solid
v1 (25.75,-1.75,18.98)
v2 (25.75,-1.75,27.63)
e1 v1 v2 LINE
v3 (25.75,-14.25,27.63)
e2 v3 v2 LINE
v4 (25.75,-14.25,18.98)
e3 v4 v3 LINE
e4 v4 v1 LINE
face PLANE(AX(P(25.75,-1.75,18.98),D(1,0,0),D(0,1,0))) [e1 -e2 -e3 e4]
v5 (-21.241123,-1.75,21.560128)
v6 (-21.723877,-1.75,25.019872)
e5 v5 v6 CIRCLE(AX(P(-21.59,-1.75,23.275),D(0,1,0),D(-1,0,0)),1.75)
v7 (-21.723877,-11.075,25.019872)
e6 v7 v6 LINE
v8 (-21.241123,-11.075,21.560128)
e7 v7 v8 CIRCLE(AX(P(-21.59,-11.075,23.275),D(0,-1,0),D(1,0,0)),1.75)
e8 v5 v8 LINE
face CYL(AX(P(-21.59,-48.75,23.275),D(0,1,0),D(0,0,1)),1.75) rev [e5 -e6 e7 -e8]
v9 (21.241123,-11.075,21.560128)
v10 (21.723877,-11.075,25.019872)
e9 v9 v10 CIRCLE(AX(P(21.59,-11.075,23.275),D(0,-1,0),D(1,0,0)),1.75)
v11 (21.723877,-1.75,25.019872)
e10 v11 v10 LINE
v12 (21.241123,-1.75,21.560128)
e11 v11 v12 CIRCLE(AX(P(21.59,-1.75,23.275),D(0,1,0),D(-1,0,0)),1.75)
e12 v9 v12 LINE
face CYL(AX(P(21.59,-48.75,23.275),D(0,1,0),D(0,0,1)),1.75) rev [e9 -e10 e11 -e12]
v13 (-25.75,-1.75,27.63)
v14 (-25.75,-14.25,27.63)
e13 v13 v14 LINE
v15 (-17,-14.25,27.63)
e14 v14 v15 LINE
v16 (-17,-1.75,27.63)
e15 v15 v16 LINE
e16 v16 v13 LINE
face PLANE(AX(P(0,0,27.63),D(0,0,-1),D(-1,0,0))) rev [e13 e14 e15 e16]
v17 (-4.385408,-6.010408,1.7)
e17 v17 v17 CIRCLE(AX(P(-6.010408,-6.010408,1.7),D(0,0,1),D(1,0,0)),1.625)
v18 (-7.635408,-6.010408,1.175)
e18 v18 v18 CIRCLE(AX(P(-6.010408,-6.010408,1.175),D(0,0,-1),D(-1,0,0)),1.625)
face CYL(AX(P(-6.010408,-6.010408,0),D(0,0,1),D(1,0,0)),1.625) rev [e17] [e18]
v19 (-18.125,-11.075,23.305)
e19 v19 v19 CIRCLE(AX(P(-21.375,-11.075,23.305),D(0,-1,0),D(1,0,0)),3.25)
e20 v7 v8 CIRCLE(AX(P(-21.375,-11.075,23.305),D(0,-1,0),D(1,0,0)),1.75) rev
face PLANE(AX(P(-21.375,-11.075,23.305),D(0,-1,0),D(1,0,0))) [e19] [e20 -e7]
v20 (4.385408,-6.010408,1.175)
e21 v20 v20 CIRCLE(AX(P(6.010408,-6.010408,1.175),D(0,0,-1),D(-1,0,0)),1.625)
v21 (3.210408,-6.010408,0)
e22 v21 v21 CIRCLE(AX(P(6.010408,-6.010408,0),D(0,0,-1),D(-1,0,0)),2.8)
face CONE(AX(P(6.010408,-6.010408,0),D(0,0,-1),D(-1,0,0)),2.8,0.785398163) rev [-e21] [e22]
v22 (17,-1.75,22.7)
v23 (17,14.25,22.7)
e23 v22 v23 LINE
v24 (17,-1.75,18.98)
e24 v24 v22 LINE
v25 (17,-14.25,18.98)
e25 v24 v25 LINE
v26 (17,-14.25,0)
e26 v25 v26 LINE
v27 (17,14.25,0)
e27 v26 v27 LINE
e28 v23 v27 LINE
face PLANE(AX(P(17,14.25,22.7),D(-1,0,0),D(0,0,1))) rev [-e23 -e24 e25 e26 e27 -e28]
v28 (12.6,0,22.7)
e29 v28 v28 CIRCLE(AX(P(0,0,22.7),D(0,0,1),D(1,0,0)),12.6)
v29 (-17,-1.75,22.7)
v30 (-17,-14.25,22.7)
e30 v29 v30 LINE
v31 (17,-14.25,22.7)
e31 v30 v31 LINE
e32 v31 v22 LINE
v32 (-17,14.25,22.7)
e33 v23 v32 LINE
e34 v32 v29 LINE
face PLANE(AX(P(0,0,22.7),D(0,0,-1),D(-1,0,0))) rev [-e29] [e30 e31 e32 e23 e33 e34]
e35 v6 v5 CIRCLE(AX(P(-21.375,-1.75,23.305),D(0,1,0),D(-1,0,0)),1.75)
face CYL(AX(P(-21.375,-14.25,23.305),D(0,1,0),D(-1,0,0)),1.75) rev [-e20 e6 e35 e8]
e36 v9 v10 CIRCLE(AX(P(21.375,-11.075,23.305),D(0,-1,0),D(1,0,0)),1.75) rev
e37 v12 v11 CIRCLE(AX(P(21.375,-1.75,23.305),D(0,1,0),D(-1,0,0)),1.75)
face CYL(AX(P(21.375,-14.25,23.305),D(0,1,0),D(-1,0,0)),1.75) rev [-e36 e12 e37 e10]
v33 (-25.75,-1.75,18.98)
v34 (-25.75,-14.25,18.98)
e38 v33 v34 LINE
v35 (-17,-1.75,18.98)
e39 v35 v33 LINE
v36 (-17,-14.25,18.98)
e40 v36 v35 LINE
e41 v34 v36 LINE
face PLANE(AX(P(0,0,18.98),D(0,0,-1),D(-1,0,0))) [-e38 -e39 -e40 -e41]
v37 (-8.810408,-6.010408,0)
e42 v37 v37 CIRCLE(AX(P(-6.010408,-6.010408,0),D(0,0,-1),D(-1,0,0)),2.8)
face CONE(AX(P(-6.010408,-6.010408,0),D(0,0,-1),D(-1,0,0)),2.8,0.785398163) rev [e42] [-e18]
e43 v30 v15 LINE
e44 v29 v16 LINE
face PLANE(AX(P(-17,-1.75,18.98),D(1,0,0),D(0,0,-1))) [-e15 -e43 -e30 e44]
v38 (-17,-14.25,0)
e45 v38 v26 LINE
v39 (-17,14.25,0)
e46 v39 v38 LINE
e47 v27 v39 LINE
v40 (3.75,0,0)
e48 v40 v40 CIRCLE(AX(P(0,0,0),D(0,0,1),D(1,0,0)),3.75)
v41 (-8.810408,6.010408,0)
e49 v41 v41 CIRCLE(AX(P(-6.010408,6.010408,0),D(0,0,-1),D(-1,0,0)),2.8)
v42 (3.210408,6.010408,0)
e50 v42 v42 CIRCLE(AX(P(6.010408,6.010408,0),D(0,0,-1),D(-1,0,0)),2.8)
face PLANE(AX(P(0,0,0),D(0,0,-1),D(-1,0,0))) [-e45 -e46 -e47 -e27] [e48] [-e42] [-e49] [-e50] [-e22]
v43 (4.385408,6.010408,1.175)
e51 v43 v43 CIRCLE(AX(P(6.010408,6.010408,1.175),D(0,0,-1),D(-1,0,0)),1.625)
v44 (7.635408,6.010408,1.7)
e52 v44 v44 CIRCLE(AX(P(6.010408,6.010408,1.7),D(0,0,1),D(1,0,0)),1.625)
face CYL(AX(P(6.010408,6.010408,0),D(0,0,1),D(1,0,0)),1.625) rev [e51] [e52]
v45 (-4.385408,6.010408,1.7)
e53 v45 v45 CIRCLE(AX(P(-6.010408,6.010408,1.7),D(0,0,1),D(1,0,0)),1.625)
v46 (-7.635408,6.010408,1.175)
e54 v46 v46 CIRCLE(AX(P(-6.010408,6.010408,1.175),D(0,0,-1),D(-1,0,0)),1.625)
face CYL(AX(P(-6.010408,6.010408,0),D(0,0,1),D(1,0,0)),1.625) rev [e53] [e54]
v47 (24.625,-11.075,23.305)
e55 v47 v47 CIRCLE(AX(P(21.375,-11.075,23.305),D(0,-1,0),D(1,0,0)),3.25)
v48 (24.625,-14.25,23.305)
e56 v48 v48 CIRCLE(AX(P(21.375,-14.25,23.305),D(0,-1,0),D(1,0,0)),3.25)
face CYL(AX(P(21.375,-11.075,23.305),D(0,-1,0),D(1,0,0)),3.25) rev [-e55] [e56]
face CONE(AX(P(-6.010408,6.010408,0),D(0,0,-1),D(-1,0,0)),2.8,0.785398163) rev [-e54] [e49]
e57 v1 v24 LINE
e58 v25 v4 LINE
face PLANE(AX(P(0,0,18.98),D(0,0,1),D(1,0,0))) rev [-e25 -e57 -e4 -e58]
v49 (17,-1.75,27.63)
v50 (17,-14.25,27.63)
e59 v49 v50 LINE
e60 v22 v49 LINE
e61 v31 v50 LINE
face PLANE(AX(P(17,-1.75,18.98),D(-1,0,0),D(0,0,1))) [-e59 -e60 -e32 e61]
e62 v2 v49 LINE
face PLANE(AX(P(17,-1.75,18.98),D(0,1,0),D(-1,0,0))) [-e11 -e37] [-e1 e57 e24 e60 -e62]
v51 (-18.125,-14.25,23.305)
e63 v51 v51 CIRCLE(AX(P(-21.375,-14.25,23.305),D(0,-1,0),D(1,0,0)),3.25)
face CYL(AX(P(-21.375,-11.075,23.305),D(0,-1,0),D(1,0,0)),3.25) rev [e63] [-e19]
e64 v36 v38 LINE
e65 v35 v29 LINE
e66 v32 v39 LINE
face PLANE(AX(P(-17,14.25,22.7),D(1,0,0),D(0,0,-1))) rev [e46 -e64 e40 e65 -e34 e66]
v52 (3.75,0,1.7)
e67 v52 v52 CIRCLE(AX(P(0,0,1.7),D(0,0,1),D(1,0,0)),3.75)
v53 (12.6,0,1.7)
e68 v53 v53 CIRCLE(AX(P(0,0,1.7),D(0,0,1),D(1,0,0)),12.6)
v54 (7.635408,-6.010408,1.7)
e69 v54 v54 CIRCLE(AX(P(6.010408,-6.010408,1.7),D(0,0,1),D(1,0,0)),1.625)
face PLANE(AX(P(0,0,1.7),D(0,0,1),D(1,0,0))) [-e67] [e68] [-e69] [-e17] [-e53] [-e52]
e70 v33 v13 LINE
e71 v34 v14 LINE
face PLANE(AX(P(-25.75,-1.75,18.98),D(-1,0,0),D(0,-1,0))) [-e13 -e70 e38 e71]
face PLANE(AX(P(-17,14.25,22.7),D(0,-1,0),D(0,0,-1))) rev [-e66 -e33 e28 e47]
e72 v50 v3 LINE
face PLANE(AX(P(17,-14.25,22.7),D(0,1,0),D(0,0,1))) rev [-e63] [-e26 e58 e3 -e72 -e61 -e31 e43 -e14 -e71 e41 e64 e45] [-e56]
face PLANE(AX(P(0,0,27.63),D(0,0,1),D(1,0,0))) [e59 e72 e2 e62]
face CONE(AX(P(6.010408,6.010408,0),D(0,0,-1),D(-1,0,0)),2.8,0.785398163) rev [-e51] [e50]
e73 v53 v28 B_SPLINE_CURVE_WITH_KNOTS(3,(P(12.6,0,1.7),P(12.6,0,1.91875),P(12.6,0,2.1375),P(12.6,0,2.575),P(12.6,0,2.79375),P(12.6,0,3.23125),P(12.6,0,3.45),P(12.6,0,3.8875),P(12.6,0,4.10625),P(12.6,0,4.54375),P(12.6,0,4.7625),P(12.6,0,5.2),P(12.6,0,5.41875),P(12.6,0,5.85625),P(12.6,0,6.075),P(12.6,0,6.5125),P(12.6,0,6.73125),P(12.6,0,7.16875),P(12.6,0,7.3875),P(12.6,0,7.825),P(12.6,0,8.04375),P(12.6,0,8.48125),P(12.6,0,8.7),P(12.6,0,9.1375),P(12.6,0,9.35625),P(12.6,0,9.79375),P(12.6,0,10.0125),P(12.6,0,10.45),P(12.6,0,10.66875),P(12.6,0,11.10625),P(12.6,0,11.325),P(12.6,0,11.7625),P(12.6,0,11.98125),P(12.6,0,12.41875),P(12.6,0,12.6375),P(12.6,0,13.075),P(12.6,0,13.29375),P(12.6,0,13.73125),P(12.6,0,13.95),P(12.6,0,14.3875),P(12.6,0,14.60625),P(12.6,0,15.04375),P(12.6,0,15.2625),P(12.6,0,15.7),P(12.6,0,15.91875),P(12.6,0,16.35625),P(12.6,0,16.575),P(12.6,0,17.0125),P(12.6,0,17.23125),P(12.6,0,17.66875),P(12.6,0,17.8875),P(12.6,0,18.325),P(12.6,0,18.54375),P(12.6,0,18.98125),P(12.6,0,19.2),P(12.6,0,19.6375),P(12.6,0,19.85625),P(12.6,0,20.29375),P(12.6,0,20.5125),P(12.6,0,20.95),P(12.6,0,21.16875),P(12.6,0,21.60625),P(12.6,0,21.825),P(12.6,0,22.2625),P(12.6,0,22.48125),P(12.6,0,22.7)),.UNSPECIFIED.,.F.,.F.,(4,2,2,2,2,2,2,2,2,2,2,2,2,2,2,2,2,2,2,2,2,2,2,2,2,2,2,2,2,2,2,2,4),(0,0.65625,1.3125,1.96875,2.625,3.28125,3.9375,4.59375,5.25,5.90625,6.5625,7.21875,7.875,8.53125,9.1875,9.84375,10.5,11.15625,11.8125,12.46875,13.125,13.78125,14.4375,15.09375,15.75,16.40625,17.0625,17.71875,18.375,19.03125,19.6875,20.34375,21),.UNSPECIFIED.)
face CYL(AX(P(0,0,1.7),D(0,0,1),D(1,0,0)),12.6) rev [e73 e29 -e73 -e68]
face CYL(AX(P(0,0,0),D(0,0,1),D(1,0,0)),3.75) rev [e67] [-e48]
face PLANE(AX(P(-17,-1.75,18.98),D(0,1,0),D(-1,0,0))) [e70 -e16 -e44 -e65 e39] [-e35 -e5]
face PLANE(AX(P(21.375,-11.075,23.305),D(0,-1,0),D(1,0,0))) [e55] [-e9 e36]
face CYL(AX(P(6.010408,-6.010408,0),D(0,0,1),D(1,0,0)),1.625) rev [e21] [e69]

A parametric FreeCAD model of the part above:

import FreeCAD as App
import Part
import Sketcher


def add_polygon(sketch, points):
    """Adds a closed chain of lines whose ends are joined by coincident constraints."""
    first, n = sketch.GeometryCount, len(points)
    for a, b in zip(points, points[1:] + points[:1]):
        sketch.addGeometry(Part.LineSegment(App.Vector(*a, 0), App.Vector(*b, 0)), False)
    for i in range(n):
        sketch.addConstraint(Sketcher.Constraint("Coincident", first + i, 2, first + (i + 1) % n, 1))

doc = App.newDocument("Part")
body = doc.addObject("PartDesign::Body", "Body")

sketch1 = body.newObject("Sketcher::SketchObject", "Sketch")
sketch1.AttachmentSupport = (doc.getObject("XY_Plane"), [""])
sketch1.MapMode = "FlatFace"
add_polygon(sketch1, [(-17, 14.25), (-17, -14.25), (17, -14.25), (17, 14.25)])
sketch1.addConstraint([
    Sketcher.Constraint("Vertical", 0),
    Sketcher.Constraint("Horizontal", 1),
    Sketcher.Constraint("Vertical", 2),
    Sketcher.Constraint("Horizontal", 3),
    Sketcher.Constraint("Symmetric", 0, 2, 2, 2, -1, 1),
    Sketcher.Constraint("DistanceX", 1, 1, 1, 2, 34.0),
    Sketcher.Constraint("DistanceY", 0, 2, 0, 1, 28.5),
])
pad1 = body.newObject("PartDesign::Pad", "Pad")
pad1.Profile = sketch1
pad1.Length = 22.7

sketch2 = body.newObject("Sketcher::SketchObject", "Sketch001")
sketch2.AttachmentSupport = (doc.getObject("XY_Plane"), [""])
sketch2.MapMode = "FlatFace"
sketch2.AttachmentOffset = App.Placement(App.Vector(0, 0, 22.7), App.Rotation())
sketch2.addGeometry(Part.Circle(App.Vector(0, 0, 0), App.Vector(0, 0, 1), 12.6), False)
sketch2.addConstraint([
    Sketcher.Constraint("Coincident", 0, 3, -1, 1),
    Sketcher.Constraint("Diameter", 0, 25.2),
])
pocket1 = body.newObject("PartDesign::Pocket", "Pocket")
pocket1.Profile = sketch2
pocket1.Length = 21

sketch3 = body.newObject("Sketcher::SketchObject", "Sketch002")
sketch3.AttachmentSupport = (doc.getObject("XY_Plane"), [""])
sketch3.MapMode = "FlatFace"
sketch3.AttachmentOffset = App.Placement(App.Vector(0, 0, 1.7), App.Rotation())
sketch3.addGeometry([
    Part.Circle(App.Vector(6.010408, 6.010408, 0), App.Vector(0, 0, 1), 1.625),
    Part.Circle(App.Vector(-6.010408, 6.010408, 0), App.Vector(0, 0, 1), 1.625),
    Part.Circle(App.Vector(6.010408, -6.010408, 0), App.Vector(0, 0, 1), 1.625),
    Part.Circle(App.Vector(-6.010408, -6.010408, 0), App.Vector(0, 0, 1), 1.625),
    Part.Circle(App.Vector(0, 0, 0), App.Vector(0, 0, 1), 3.75),
], False)
sketch3.addConstraint([
    Sketcher.Constraint("Coincident", 4, 3, -1, 1),
    Sketcher.Constraint("Equal", 0, 1),
    Sketcher.Constraint("Equal", 1, 2),
    Sketcher.Constraint("Equal", 2, 3),
    Sketcher.Constraint("Symmetric", 1, 3, 2, 3, -1, 1),
    Sketcher.Constraint("Symmetric", 0, 3, 3, 3, -1, 1),
    Sketcher.Constraint("Symmetric", 0, 3, 1, 3, -2),
    Sketcher.Constraint("Diameter", 4, 7.5),
    Sketcher.Constraint("Diameter", 0, 3.25),
    Sketcher.Constraint("DistanceX", -1, 1, 0, 3, 6.010408),
    Sketcher.Constraint("DistanceY", -1, 1, 0, 3, 6.010408),
])
pocket2 = body.newObject("PartDesign::Pocket", "Pocket001")
pocket2.Profile = sketch3
pocket2.Type = "ThroughAll"

sketch4 = body.newObject("Sketcher::SketchObject", "Sketch003")
sketch4.AttachmentSupport = (doc.getObject("XY_Plane"), [""])
sketch4.MapMode = "FlatFace"
sketch4.AttachmentOffset = App.Placement(App.Vector(0, 0, 22.7), App.Rotation())
add_polygon(sketch4, [(-25.75, -1.75), (-25.75, -14.25), (-17, -14.25), (-17, -1.75)])
add_polygon(sketch4, [(17, -1.75), (17, -14.25), (25.75, -14.25), (25.75, -1.75)])
sketch4.addConstraint([
    Sketcher.Constraint("Vertical", 0),
    Sketcher.Constraint("Horizontal", 1),
    Sketcher.Constraint("Vertical", 2),
    Sketcher.Constraint("Horizontal", 3),
    Sketcher.Constraint("Vertical", 4),
    Sketcher.Constraint("Horizontal", 5),
    Sketcher.Constraint("Vertical", 6),
    Sketcher.Constraint("Horizontal", 7),
    Sketcher.Constraint("Symmetric", 1, 2, 4, 2, -2),
    Sketcher.Constraint("Symmetric", 3, 2, 6, 2, -2),
    Sketcher.Constraint("DistanceY", 0, 2, 0, 1, 12.5),
    Sketcher.Constraint("DistanceX", 1, 2, -1, 1, 17.0),
    Sketcher.Constraint("DistanceX", 1, 1, 1, 2, 8.75),
    Sketcher.Constraint("DistanceY", 0, 2, -1, 1, 14.25),
])
pad2 = body.newObject("PartDesign::Pad", "Pad001")
pad2.Profile = sketch4
pad2.Type = "TwoLengths"
pad2.Length = 4.93
pad2.Length2 = 3.72

sketch5 = body.newObject("Sketcher::SketchObject", "Sketch004")
sketch5.AttachmentSupport = (doc.getObject("XZ_Plane"), [""])
sketch5.MapMode = "FlatFace"
sketch5.AttachmentOffset = App.Placement(App.Vector(0, 0, 1.75), App.Rotation())
sketch5.addGeometry([
    Part.Circle(App.Vector(21.375, 23.305, 0), App.Vector(0, 0, 1), 1.75),
    Part.Circle(App.Vector(-21.375, 23.305, 0), App.Vector(0, 0, 1), 1.75),
], False)
sketch5.addConstraint([
    Sketcher.Constraint("Equal", 0, 1),
    Sketcher.Constraint("Symmetric", 0, 3, 1, 3, -2),
    Sketcher.Constraint("Diameter", 0, 3.5),
    Sketcher.Constraint("DistanceX", 1, 3, 0, 3, 42.75),
    Sketcher.Constraint("DistanceY", -1, 1, 0, 3, 23.305),
])
pocket3 = body.newObject("PartDesign::Pocket", "Pocket002")
pocket3.Profile = sketch5
pocket3.Type = "ThroughAll"
pocket3.Reversed = True

sketch6 = body.newObject("Sketcher::SketchObject", "Sketch005")
sketch6.AttachmentSupport = (doc.getObject("XZ_Plane"), [""])
sketch6.MapMode = "FlatFace"
sketch6.AttachmentOffset = App.Placement(App.Vector(0, 0, 14.25), App.Rotation())
sketch6.addGeometry([
    Part.Circle(App.Vector(-21.375, 23.305, 0), App.Vector(0, 0, 1), 3.25),
    Part.Circle(App.Vector(21.375, 23.305, 0), App.Vector(0, 0, 1), 3.25),
], False)
sketch6.addConstraint([
    Sketcher.Constraint("Equal", 0, 1),
    Sketcher.Constraint("Symmetric", 0, 3, 1, 3, -2),
    Sketcher.Constraint("Diameter", 0, 6.5),
    Sketcher.Constraint("DistanceX", 0, 3, 1, 3, 42.75),
    Sketcher.Constraint("DistanceY", -1, 1, 0, 3, 23.305),
])
pocket4 = body.newObject("PartDesign::Pocket", "Pocket003")
pocket4.Profile = sketch6
pocket4.Length = 3.175

sketch7 = body.newObject("Sketcher::SketchObject", "Sketch006")
sketch7.AttachmentSupport = (doc.getObject("YZ_Plane"), [""])
sketch7.MapMode = "FlatFace"
sketch7.AttachmentOffset = App.Placement(App.Vector(0, 0, -6.010408), App.Rotation())
add_polygon(sketch7, [(6.010408, 0), (8.810408, 0), (6.010408, 2.8)])
sketch7.addGeometry(Part.LineSegment(App.Vector(6.010408, 0, 0), App.Vector(6.010408, 2.8, 0)), True)
sketch7.addConstraint([
    Sketcher.Constraint("Horizontal", 0),
    Sketcher.Constraint("Vertical", 2),
    Sketcher.Constraint("Vertical", 3),
    Sketcher.Constraint("Coincident", 3, 1, 2, 2),
    Sketcher.Constraint("PointOnObject", 0, 2, -1),
    Sketcher.Constraint("Equal", 0, 2),
    Sketcher.Constraint("Equal", 2, 3),
    Sketcher.Constraint("DistanceX", 0, 1, 0, 2, 2.8),
    Sketcher.Constraint("DistanceX", -1, 1, 0, 2, 8.810408),
])
groove = body.newObject("PartDesign::Groove", "Groove")
groove.Profile = sketch7
groove.ReferenceAxis = (sketch7, ["Axis0"])
groove.Angle = 360

sketch8 = body.newObject("Sketcher::SketchObject", "Sketch007")
sketch8.AttachmentSupport = (doc.getObject("YZ_Plane"), [""])
sketch8.MapMode = "FlatFace"
sketch8.AttachmentOffset = App.Placement(App.Vector(0, 0, -6.010408), App.Rotation())
add_polygon(sketch8, [(-6.010408, 0), (-3.210408, 0), (-6.010408, 2.8)])
sketch8.addGeometry(Part.LineSegment(App.Vector(-6.010408, 0, 0), App.Vector(-6.010408, 2.8, 0)), True)
sketch8.addConstraint([
    Sketcher.Constraint("Horizontal", 0),
    Sketcher.Constraint("Vertical", 2),
    Sketcher.Constraint("Vertical", 3),
    Sketcher.Constraint("Coincident", 3, 1, 2, 2),
    Sketcher.Constraint("PointOnObject", 0, 2, -1),
    Sketcher.Constraint("Equal", 0, 2),
    Sketcher.Constraint("Equal", 2, 3),
    Sketcher.Constraint("DistanceX", 0, 1, 0, 2, 2.8),
    Sketcher.Constraint("DistanceX", 0, 2, -1, 1, 3.210408),
])
groove2 = body.newObject("PartDesign::Groove", "Groove001")
groove2.Profile = sketch8
groove2.ReferenceAxis = (sketch8, ["Axis0"])
groove2.Angle = 360

sketch9 = body.newObject("Sketcher::SketchObject", "Sketch008")
sketch9.AttachmentSupport = (doc.getObject("YZ_Plane"), [""])
sketch9.MapMode = "FlatFace"
sketch9.AttachmentOffset = App.Placement(App.Vector(0, 0, 6.010408), App.Rotation())
add_polygon(sketch9, [(-6.010408, 0), (-3.210408, 0), (-6.010408, 2.8)])
sketch9.addGeometry(Part.LineSegment(App.Vector(-6.010408, 0, 0), App.Vector(-6.010408, 2.8, 0)), True)
sketch9.addConstraint([
    Sketcher.Constraint("Horizontal", 0),
    Sketcher.Constraint("Vertical", 2),
    Sketcher.Constraint("Vertical", 3),
    Sketcher.Constraint("Coincident", 3, 1, 2, 2),
    Sketcher.Constraint("PointOnObject", 0, 2, -1),
    Sketcher.Constraint("Equal", 0, 2),
    Sketcher.Constraint("Equal", 2, 3),
    Sketcher.Constraint("DistanceX", 0, 1, 0, 2, 2.8),
    Sketcher.Constraint("DistanceX", 0, 2, -1, 1, 3.210408),
])
groove3 = body.newObject("PartDesign::Groove", "Groove002")
groove3.Profile = sketch9
groove3.ReferenceAxis = (sketch9, ["Axis0"])
groove3.Angle = 360

sketch10 = body.newObject("Sketcher::SketchObject", "Sketch009")
sketch10.AttachmentSupport = (doc.getObject("YZ_Plane"), [""])
sketch10.MapMode = "FlatFace"
sketch10.AttachmentOffset = App.Placement(App.Vector(0, 0, 6.010408), App.Rotation())
add_polygon(sketch10, [(6.010408, 0), (8.810408, 0), (6.010408, 2.8)])
sketch10.addGeometry(Part.LineSegment(App.Vector(6.010408, 0, 0), App.Vector(6.010408, 2.8, 0)), True)
sketch10.addConstraint([
    Sketcher.Constraint("Horizontal", 0),
    Sketcher.Constraint("Vertical", 2),
    Sketcher.Constraint("Vertical", 3),
    Sketcher.Constraint("Coincident", 3, 1, 2, 2),
    Sketcher.Constraint("PointOnObject", 0, 2, -1),
    Sketcher.Constraint("Equal", 0, 2),
    Sketcher.Constraint("Equal", 2, 3),
    Sketcher.Constraint("DistanceX", 0, 1, 0, 2, 2.8),
    Sketcher.Constraint("DistanceX", -1, 1, 0, 2, 8.810408),
])
groove4 = body.newObject("PartDesign::Groove", "Groove003")
groove4.Profile = sketch10
groove4.ReferenceAxis = (sketch10, ["Axis0"])
groove4.Angle = 360

sketch11 = body.newObject("Sketcher::SketchObject", "Sketch010")
sketch11.AttachmentSupport = (doc.getObject("XZ_Plane"), [""])
sketch11.MapMode = "FlatFace"
sketch11.AttachmentOffset = App.Placement(App.Vector(0, 0, -1.25), App.Rotation())
sketch11.addGeometry([
    Part.Circle(App.Vector(21.59, 23.275, 0), App.Vector(0, 0, 1), 1.75),
    Part.Circle(App.Vector(-21.59, 23.275, 0), App.Vector(0, 0, 1), 1.75),
], False)
sketch11.addConstraint([
    Sketcher.Constraint("Equal", 0, 1),
    Sketcher.Constraint("Symmetric", 0, 3, 1, 3, -2),
    Sketcher.Constraint("Diameter", 0, 3.5),
    Sketcher.Constraint("DistanceX", -1, 1, 0, 3, 21.59),
    Sketcher.Constraint("DistanceY", -1, 1, 0, 3, 23.275),
])
pocket5 = body.newObject("PartDesign::Pocket", "Pocket004")
pocket5.Profile = sketch11
pocket5.Length = 50
pocket5.Reversed = True

doc.recompute()
